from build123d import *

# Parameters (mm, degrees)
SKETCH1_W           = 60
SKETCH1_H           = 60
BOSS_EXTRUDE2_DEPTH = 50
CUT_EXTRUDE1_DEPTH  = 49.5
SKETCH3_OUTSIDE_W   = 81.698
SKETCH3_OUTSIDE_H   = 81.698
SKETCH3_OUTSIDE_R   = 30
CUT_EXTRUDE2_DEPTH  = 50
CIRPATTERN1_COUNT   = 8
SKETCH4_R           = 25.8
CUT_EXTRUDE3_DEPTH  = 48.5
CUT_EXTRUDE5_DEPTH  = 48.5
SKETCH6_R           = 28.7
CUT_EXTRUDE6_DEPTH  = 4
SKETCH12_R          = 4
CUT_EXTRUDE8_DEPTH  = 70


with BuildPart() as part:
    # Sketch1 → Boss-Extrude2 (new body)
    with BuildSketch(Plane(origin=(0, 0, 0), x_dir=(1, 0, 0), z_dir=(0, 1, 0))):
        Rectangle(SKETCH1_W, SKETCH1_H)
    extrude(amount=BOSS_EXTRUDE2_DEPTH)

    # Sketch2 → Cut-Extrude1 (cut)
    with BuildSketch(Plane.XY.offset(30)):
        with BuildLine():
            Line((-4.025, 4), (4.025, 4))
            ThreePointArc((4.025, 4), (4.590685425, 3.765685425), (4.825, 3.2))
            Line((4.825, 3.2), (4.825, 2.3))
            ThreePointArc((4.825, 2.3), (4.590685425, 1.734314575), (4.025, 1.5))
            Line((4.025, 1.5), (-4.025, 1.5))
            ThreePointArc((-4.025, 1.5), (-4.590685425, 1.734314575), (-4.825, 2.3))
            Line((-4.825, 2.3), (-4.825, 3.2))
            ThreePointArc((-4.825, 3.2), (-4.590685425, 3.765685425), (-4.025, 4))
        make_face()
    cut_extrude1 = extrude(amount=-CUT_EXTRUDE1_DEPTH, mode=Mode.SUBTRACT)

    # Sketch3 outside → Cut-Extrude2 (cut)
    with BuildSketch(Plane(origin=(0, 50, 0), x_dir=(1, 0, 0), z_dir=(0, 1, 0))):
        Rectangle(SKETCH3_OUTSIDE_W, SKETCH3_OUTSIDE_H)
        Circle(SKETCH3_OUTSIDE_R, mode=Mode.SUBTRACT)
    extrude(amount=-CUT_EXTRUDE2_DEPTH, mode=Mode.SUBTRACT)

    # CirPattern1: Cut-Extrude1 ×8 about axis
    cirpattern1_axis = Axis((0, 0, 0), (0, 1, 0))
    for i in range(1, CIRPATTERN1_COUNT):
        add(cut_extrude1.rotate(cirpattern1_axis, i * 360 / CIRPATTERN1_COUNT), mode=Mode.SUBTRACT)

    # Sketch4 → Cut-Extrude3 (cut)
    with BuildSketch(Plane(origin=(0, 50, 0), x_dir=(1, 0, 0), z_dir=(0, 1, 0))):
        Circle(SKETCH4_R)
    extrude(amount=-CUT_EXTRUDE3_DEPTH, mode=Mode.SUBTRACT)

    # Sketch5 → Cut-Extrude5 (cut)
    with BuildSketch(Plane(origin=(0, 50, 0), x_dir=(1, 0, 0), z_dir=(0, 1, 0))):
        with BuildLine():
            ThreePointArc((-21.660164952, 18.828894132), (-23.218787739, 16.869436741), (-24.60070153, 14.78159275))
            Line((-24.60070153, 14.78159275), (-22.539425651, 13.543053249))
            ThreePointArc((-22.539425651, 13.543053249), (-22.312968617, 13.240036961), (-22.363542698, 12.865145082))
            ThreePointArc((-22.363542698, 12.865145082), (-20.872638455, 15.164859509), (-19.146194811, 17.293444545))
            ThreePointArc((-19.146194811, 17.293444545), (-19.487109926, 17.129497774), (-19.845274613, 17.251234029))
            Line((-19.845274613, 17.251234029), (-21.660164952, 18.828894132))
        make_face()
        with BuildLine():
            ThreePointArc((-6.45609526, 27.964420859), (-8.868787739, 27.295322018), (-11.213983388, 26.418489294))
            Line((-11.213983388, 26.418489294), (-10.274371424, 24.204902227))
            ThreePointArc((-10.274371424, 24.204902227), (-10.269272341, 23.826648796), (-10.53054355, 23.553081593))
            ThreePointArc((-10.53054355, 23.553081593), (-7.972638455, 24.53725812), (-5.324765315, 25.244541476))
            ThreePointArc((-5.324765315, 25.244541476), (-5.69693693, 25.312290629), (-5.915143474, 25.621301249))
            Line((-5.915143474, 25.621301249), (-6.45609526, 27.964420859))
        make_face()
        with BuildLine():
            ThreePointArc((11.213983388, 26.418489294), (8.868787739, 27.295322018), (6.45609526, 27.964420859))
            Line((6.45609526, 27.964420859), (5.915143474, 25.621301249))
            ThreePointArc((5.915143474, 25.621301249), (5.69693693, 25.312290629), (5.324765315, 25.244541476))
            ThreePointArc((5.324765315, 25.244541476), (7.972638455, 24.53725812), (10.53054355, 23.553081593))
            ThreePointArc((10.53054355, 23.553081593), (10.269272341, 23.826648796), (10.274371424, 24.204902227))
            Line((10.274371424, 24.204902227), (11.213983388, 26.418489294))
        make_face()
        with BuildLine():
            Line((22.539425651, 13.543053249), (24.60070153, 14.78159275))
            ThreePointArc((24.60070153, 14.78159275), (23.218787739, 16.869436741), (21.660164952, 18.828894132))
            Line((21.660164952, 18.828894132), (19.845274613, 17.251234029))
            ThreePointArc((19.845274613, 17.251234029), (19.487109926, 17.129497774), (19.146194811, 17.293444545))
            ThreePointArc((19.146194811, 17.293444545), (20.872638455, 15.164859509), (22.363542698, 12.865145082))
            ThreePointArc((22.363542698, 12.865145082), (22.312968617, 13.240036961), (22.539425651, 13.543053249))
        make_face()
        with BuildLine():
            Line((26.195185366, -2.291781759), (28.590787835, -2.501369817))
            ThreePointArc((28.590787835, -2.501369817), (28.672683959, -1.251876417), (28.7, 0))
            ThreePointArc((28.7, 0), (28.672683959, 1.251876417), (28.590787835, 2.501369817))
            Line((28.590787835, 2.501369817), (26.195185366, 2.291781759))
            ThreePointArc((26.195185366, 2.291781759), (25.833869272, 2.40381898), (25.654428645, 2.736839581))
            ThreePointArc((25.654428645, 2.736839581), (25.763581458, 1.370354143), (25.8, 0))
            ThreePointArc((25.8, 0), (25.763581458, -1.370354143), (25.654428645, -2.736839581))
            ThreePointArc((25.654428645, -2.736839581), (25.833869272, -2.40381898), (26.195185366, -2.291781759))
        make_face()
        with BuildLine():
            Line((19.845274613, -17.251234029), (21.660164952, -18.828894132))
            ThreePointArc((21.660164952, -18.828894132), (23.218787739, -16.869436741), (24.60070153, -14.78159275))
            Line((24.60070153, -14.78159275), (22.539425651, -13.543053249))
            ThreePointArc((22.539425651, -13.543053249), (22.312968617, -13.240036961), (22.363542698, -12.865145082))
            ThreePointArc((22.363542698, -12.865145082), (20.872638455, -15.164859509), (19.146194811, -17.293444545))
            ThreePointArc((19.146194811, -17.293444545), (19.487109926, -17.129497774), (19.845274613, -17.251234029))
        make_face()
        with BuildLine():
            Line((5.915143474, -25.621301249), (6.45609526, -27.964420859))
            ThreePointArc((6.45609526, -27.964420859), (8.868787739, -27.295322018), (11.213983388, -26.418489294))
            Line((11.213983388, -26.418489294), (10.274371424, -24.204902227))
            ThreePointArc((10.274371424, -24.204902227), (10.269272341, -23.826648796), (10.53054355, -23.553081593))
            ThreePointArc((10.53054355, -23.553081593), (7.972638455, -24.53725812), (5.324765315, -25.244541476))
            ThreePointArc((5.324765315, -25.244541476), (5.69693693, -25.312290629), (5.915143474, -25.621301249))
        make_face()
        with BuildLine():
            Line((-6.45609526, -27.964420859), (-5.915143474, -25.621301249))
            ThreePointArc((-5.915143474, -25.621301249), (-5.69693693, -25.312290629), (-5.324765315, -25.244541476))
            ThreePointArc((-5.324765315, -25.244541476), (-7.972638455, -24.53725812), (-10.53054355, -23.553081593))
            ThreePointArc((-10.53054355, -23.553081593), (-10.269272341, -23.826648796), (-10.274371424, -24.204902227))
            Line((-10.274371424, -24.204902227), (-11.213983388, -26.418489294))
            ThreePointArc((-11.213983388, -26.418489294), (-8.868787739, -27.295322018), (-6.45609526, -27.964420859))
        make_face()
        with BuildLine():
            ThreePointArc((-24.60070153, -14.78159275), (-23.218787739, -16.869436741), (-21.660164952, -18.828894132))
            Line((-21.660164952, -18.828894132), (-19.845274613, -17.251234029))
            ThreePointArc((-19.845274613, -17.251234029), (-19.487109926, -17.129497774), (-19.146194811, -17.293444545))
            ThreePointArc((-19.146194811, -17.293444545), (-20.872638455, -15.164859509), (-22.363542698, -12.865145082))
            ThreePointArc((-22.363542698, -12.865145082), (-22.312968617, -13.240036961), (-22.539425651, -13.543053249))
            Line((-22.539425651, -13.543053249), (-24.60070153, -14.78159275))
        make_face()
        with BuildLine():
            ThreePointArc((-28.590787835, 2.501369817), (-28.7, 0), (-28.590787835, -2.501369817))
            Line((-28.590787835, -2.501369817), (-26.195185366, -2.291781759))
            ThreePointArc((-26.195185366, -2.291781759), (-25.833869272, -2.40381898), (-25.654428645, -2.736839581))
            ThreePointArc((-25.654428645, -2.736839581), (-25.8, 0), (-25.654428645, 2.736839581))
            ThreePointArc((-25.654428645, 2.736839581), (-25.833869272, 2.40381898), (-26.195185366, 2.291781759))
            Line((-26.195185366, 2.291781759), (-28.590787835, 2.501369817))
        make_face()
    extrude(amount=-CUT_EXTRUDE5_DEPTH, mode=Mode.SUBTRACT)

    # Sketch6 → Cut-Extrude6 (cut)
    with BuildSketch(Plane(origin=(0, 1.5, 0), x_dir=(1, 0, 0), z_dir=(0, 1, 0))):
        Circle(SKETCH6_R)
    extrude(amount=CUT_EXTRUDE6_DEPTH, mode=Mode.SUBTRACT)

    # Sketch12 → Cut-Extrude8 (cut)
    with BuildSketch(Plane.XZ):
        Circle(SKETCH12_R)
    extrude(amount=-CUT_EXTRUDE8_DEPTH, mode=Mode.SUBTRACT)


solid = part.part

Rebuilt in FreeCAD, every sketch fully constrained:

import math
import FreeCAD as App
import Part
import Sketcher
from FreeCAD import Vector
Q = App.Units.Quantity

doc = App.newDocument("Part")
body = doc.addObject("PartDesign::Body", "Body")

sketch1 = body.newObject("Sketcher::SketchObject", "Sketch")
sketch1.AttachmentSupport = (doc.getObject("XZ_Plane"), [""])
sketch1.MapMode = "FlatFace"
sketch1.addGeometry([
    Part.LineSegment(Vector(-30, -30, 0), Vector(-30, 30, 0)),
    Part.LineSegment(Vector(-30, 30, 0), Vector(30, 30, 0)),
    Part.LineSegment(Vector(30, 30, 0), Vector(30, -30, 0)),
    Part.LineSegment(Vector(30, -30, 0), Vector(-30, -30, 0)),
], False)
sketch1.addConstraint([
    Sketcher.Constraint("Coincident", 0, 2, 1, 1),
    Sketcher.Constraint("Coincident", 1, 2, 2, 1),
    Sketcher.Constraint("Coincident", 2, 2, 3, 1),
    Sketcher.Constraint("Coincident", 3, 2, 0, 1),
    Sketcher.Constraint("Vertical", 0),
    Sketcher.Constraint("Horizontal", 1),
    Sketcher.Constraint("Vertical", 2),
    Sketcher.Constraint("Horizontal", 3),
    Sketcher.Constraint("Symmetric", 0, 2, 2, 2, -1, 1),
    Sketcher.Constraint("Equal", 3, 0),
    Sketcher.Constraint("DistanceX", 1, 1, 1, 2, Q("60 mm")),
])
pad1 = body.newObject("PartDesign::Pad", "Pad")
pad1.Profile = sketch1
pad1.Length = 50
pad1.Reversed = True

sketch2 = body.newObject("Sketcher::SketchObject", "Sketch001")
sketch2.AttachmentSupport = (doc.getObject("XY_Plane"), [""])
sketch2.MapMode = "FlatFace"
sketch2.AttachmentOffset = App.Placement(Vector(0, 0, 30), App.Rotation())
sketch2.addGeometry([
    Part.LineSegment(Vector(4, 4, 0), Vector(-4, 4, 0)),
    Part.ArcOfCircle(Part.Circle(Vector(-4, 3.2, 0), Vector(0, 0, 1), 0.8), math.radians(90), math.radians(180)),
    Part.LineSegment(Vector(-4.8, 3.2, 0), Vector(-4.8, 2.3, 0)),
    Part.ArcOfCircle(Part.Circle(Vector(-4, 2.3, 0), Vector(0, 0, 1), 0.8), math.radians(180), math.radians(270)),
    Part.LineSegment(Vector(-4, 1.5, 0), Vector(4, 1.5, 0)),
    Part.ArcOfCircle(Part.Circle(Vector(4, 2.3, 0), Vector(0, 0, 1), 0.8), math.radians(-90), math.radians(0)),
    Part.LineSegment(Vector(4.8, 2.3, 0), Vector(4.8, 3.2, 0)),
    Part.ArcOfCircle(Part.Circle(Vector(4, 3.2, 0), Vector(0, 0, 1), 0.8), math.radians(0), math.radians(90)),
], False)
sketch2.addConstraint([
    Sketcher.Constraint("Tangent", 0, 2, 1, 1),
    Sketcher.Constraint("Tangent", 1, 2, 2, 1),
    Sketcher.Constraint("Tangent", 2, 2, 3, 1),
    Sketcher.Constraint("Tangent", 3, 2, 4, 1),
    Sketcher.Constraint("Tangent", 4, 2, 5, 1),
    Sketcher.Constraint("Tangent", 5, 2, 6, 1),
    Sketcher.Constraint("Tangent", 6, 2, 7, 1),
    Sketcher.Constraint("Tangent", 7, 2, 0, 1),
    Sketcher.Constraint("Horizontal", 0),
    Sketcher.Constraint("Vertical", 2),
    Sketcher.Constraint("Horizontal", 4),
    Sketcher.Constraint("Vertical", 6),
    Sketcher.Constraint("Equal", 1, 3),
    Sketcher.Constraint("Equal", 3, 5),
    Sketcher.Constraint("Equal", 5, 7),
    Sketcher.Constraint("Radius", 1, Q("0.8 mm")),
    Sketcher.Constraint("DistanceY", 2, 2, 2, 1, Q("0.9 mm")),
    Sketcher.Constraint("DistanceY", -1, 1, 0, 2, Q("4 mm")),
    Sketcher.Constraint("DistanceX", 0, 2, 0, 1, Q("8.05 mm")),
    Sketcher.Constraint("DistanceX", 1, 3, -1, 1, Q("4.025 mm")),
])
pocket1 = body.newObject("PartDesign::Pocket", "Pocket")
pocket1.Profile = sketch2
pocket1.Length = 49.5

sketch3 = body.newObject("Sketcher::SketchObject", "Sketch002")
sketch3.AttachmentSupport = (doc.getObject("XZ_Plane"), [""])
sketch3.MapMode = "FlatFace"
sketch3.AttachmentOffset = App.Placement(Vector(0, 0, -50), App.Rotation())
sketch3.addGeometry([
    Part.LineSegment(Vector(-41, -41, 0), Vector(-41, 41, 0)),
    Part.LineSegment(Vector(-41, 41, 0), Vector(41, 41, 0)),
    Part.LineSegment(Vector(41, 41, 0), Vector(41, -41, 0)),
    Part.LineSegment(Vector(41, -41, 0), Vector(-41, -41, 0)),
    Part.Circle(Vector(0, 0, 0), Vector(0, 0, 1), 30),
], False)
sketch3.addConstraint([
    Sketcher.Constraint("Coincident", 0, 2, 1, 1),
    Sketcher.Constraint("Coincident", 1, 2, 2, 1),
    Sketcher.Constraint("Coincident", 2, 2, 3, 1),
    Sketcher.Constraint("Coincident", 3, 2, 0, 1),
    Sketcher.Constraint("Vertical", 0),
    Sketcher.Constraint("Horizontal", 1),
    Sketcher.Constraint("Vertical", 2),
    Sketcher.Constraint("Horizontal", 3),
    Sketcher.Constraint("Coincident", 4, 3, -1, 1),
    Sketcher.Constraint("Symmetric", 0, 2, 2, 2, -1, 1),
    Sketcher.Constraint("Equal", 3, 0),
    Sketcher.Constraint("Diameter", 4, Q("60 mm")),
    Sketcher.Constraint("DistanceX", 1, 1, 1, 2, Q("81.698 mm")),
])
pocket2 = body.newObject("PartDesign::Pocket", "Pocket001")
pocket2.Profile = sketch3
pocket2.Length = 50
pocket2.Reversed = True
doc.recompute()

polarpattern = body.newObject("PartDesign::PolarPattern", "PolarPattern")
polarpattern.Originals = [pocket1]
polarpattern.Axis = (doc.getObject("Y_Axis"), [""])
polarpattern.Angle = 360
polarpattern.Occurrences = 8
body.Tip = polarpattern

sketch4 = body.newObject("Sketcher::SketchObject", "Sketch003")
sketch4.AttachmentSupport = (doc.getObject("XZ_Plane"), [""])
sketch4.MapMode = "FlatFace"
sketch4.AttachmentOffset = App.Placement(Vector(0, 0, -50), App.Rotation())
sketch4.addGeometry(Part.Circle(Vector(0, 0, 0), Vector(0, 0, 1), 26), False)
sketch4.addConstraint([
    Sketcher.Constraint("Coincident", 0, 3, -1, 1),
    Sketcher.Constraint("Diameter", 0, Q("51.6 mm")),
])
pocket3 = body.newObject("PartDesign::Pocket", "Pocket002")
pocket3.Profile = sketch4
pocket3.Length = 48.5
pocket3.Reversed = True

sketch5 = body.newObject("Sketcher::SketchObject", "Sketch004")
sketch5.AttachmentSupport = (doc.getObject("XZ_Plane"), [""])
sketch5.MapMode = "FlatFace"
sketch5.AttachmentOffset = App.Placement(Vector(0, 0, -50), App.Rotation())
sketch5.addGeometry([
    Part.ArcOfCircle(Part.Circle(Vector(0, 0, 0), Vector(0, 0, 1), 28.7), math.radians(-149), math.radians(-139)),
    Part.LineSegment(Vector(-24.6, -14.78, 0), Vector(-22.54, -13.54, 0)),
    Part.ArcOfCircle(Part.Circle(Vector(-22.8, -13.11, 0), Vector(0, 0, 1), 0.5), math.radians(-59), math.radians(30)),
    Part.ArcOfCircle(Part.Circle(Vector(0, 0, 0), Vector(0, 0, 1), 25.8), math.radians(-150.09), math.radians(-137.91)),
    Part.ArcOfCircle(Part.Circle(Vector(-19.52, -17.63, 0), Vector(0, 0, 1), 0.5), math.radians(42), math.radians(131)),
    Part.LineSegment(Vector(-19.85, -17.25, 0), Vector(-21.66, -18.83, 0)),
    Part.ArcOfCircle(Part.Circle(Vector(0, 0, 0), Vector(0, 0, 1), 28.7), math.radians(-113), math.radians(-103)),
    Part.LineSegment(Vector(-11.21, -26.42, 0), Vector(-10.27, -24.2, 0)),
    Part.ArcOfCircle(Part.Circle(Vector(-10.73, -24.01, 0), Vector(0, 0, 1), 0.5), math.radians(-23), math.radians(66)),
    Part.ArcOfCircle(Part.Circle(Vector(0, 0, 0), Vector(0, 0, 1), 25.8), math.radians(-114.09), math.radians(-101.91)),
    Part.ArcOfCircle(Part.Circle(Vector(-5.43, -25.73, 0), Vector(0, 0, 1), 0.5), math.radians(78), math.radians(167)),
    Part.LineSegment(Vector(-5.92, -25.62, 0), Vector(-6.46, -27.96, 0)),
    Part.ArcOfCircle(Part.Circle(Vector(0, 0, 0), Vector(0, 0, 1), 28.7), math.radians(-77), math.radians(-67)),
    Part.LineSegment(Vector(6.46, -27.96, 0), Vector(5.92, -25.62, 0)),
    Part.ArcOfCircle(Part.Circle(Vector(5.43, -25.73, 0), Vector(0, 0, 1), 0.5), math.radians(13), math.radians(102)),
    Part.ArcOfCircle(Part.Circle(Vector(0, 0, 0), Vector(0, 0, 1), 25.8), math.radians(-78.09), math.radians(-65.91)),
    Part.ArcOfCircle(Part.Circle(Vector(10.73, -24.01, 0), Vector(0, 0, 1), 0.5), math.radians(114), math.radians(203)),
    Part.LineSegment(Vector(10.27, -24.2, 0), Vector(11.21, -26.42, 0)),
    Part.LineSegment(Vector(22.54, -13.54, 0), Vector(24.6, -14.78, 0)),
    Part.ArcOfCircle(Part.Circle(Vector(0, 0, 0), Vector(0, 0, 1), 28.7), math.radians(-41), math.radians(-31)),
    Part.LineSegment(Vector(21.66, -18.83, 0), Vector(19.85, -17.25, 0)),
    Part.ArcOfCircle(Part.Circle(Vector(19.52, -17.63, 0), Vector(0, 0, 1), 0.5), math.radians(49), math.radians(138)),
    Part.ArcOfCircle(Part.Circle(Vector(0, 0, 0), Vector(0, 0, 1), 25.8), math.radians(-42.09), math.radians(-29.91)),
    Part.ArcOfCircle(Part.Circle(Vector(22.8, -13.11, 0), Vector(0, 0, 1), 0.5), math.radians(150), math.radians(239)),
    Part.LineSegment(Vector(26.2, 2.29, 0), Vector(28.59, 2.5, 0)),
    Part.ArcOfCircle(Part.Circle(Vector(0, 0, 0), Vector(0, 0, 1), 28.7), math.radians(0), math.radians(5)),
    Part.ArcOfCircle(Part.Circle(Vector(0, 0, 0), Vector(0, 0, 1), 28.7), math.radians(-5), math.radians(0)),
    Part.LineSegment(Vector(28.59, -2.5, 0), Vector(26.2, -2.29, 0)),
    Part.ArcOfCircle(Part.Circle(Vector(26.15, -2.79, 0), Vector(0, 0, 1), 0.5), math.radians(85), math.radians(174)),
    Part.ArcOfCircle(Part.Circle(Vector(0, 0, 0), Vector(0, 0, 1), 25.8), math.radians(-6.09), math.radians(0)),
    Part.ArcOfCircle(Part.Circle(Vector(0, 0, 0), Vector(0, 0, 1), 25.8), math.radians(0), math.radians(6.09)),
    Part.ArcOfCircle(Part.Circle(Vector(26.15, 2.79, 0), Vector(0, 0, 1), 0.5), math.radians(-174), math.radians(-85)),
    Part.LineSegment(Vector(19.85, 17.25, 0), Vector(21.66, 18.83, 0)),
    Part.ArcOfCircle(Part.Circle(Vector(0, 0, 0), Vector(0, 0, 1), 28.7), math.radians(31), math.radians(41)),
    Part.LineSegment(Vector(24.6, 14.78, 0), Vector(22.54, 13.54, 0)),
    Part.ArcOfCircle(Part.Circle(Vector(22.8, 13.11, 0), Vector(0, 0, 1), 0.5), math.radians(121), math.radians(210)),
    Part.ArcOfCircle(Part.Circle(Vector(0, 0, 0), Vector(0, 0, 1), 25.8), math.radians(29.91), math.radians(42.09)),
    Part.ArcOfCircle(Part.Circle(Vector(19.52, 17.63, 0), Vector(0, 0, 1), 0.5), math.radians(-138), math.radians(-49)),
    Part.LineSegment(Vector(5.92, 25.62, 0), Vector(6.46, 27.96, 0)),
    Part.ArcOfCircle(Part.Circle(Vector(0, 0, 0), Vector(0, 0, 1), 28.7), math.radians(67), math.radians(77)),
    Part.LineSegment(Vector(11.21, 26.42, 0), Vector(10.27, 24.2, 0)),
    Part.ArcOfCircle(Part.Circle(Vector(10.73, 24.01, 0), Vector(0, 0, 1), 0.5), math.radians(157), math.radians(246)),
    Part.ArcOfCircle(Part.Circle(Vector(0, 0, 0), Vector(0, 0, 1), 25.8), math.radians(65.91), math.radians(78.09)),
    Part.ArcOfCircle(Part.Circle(Vector(5.43, 25.73, 0), Vector(0, 0, 1), 0.5), math.radians(-102), math.radians(-13)),
    Part.LineSegment(Vector(-6.46, 27.96, 0), Vector(-5.92, 25.62, 0)),
    Part.ArcOfCircle(Part.Circle(Vector(-5.43, 25.73, 0), Vector(0, 0, 1), 0.5), math.radians(-167), math.radians(-78)),
    Part.ArcOfCircle(Part.Circle(Vector(0, 0, 0), Vector(0, 0, 1), 25.8), math.radians(101.91), math.radians(114.09)),
    Part.ArcOfCircle(Part.Circle(Vector(-10.73, 24.01, 0), Vector(0, 0, 1), 0.5), math.radians(-66), math.radians(23)),
    Part.LineSegment(Vector(-10.27, 24.2, 0), Vector(-11.21, 26.42, 0)),
    Part.ArcOfCircle(Part.Circle(Vector(0, 0, 0), Vector(0, 0, 1), 28.7), math.radians(103), math.radians(113)),
    Part.ArcOfCircle(Part.Circle(Vector(0, 0, 0), Vector(0, 0, 1), 28.7), math.radians(139), math.radians(149)),
    Part.LineSegment(Vector(-21.66, 18.83, 0), Vector(-19.85, 17.25, 0)),
    Part.ArcOfCircle(Part.Circle(Vector(-19.52, 17.63, 0), Vector(0, 0, 1), 0.5), math.radians(-131), math.radians(-42)),
    Part.ArcOfCircle(Part.Circle(Vector(0, 0, 0), Vector(0, 0, 1), 25.8), math.radians(137.91), math.radians(150.09)),
    Part.ArcOfCircle(Part.Circle(Vector(-22.8, 13.11, 0), Vector(0, 0, 1), 0.5), math.radians(-30), math.radians(59)),
    Part.LineSegment(Vector(-22.54, 13.54, 0), Vector(-24.6, 14.78, 0)),
    Part.ArcOfCircle(Part.Circle(Vector(0, 0, 0), Vector(0, 0, 1), 28.7), math.radians(175), math.radians(185)),
    Part.LineSegment(Vector(-28.59, 2.5, 0), Vector(-26.2, 2.29, 0)),
    Part.ArcOfCircle(Part.Circle(Vector(-26.15, 2.79, 0), Vector(0, 0, 1), 0.5), math.radians(-95), math.radians(-6)),
    Part.ArcOfCircle(Part.Circle(Vector(0, 0, 0), Vector(0, 0, 1), 25.8), math.radians(173.91), math.radians(186.09)),
    Part.ArcOfCircle(Part.Circle(Vector(-26.15, -2.79, 0), Vector(0, 0, 1), 0.5), math.radians(6), math.radians(95)),
    Part.LineSegment(Vector(-26.2, -2.29, 0), Vector(-28.59, -2.5, 0)),
], False)
sketch5.addConstraint([
    Sketcher.Constraint("Coincident", 0, 1, 1, 1),
    Sketcher.Constraint("Tangent", 1, 2, 2, 1),
    Sketcher.Constraint("Tangent", 2, 2, 3, 1),
    Sketcher.Constraint("Tangent", 3, 2, 4, 1),
    Sketcher.Constraint("Tangent", 4, 2, 5, 1),
    Sketcher.Constraint("Coincident", 5, 2, 0, 2),
    Sketcher.Constraint("Coincident", 6, 1, 7, 1),
    Sketcher.Constraint("Tangent", 7, 2, 8, 1),
    Sketcher.Constraint("Tangent", 8, 2, 9, 1),
    Sketcher.Constraint("Tangent", 9, 2, 10, 1),
    Sketcher.Constraint("Tangent", 10, 2, 11, 1),
    Sketcher.Constraint("Coincident", 11, 2, 6, 2),
    Sketcher.Constraint("Coincident", 12, 1, 13, 1),
    Sketcher.Constraint("Tangent", 13, 2, 14, 1),
    Sketcher.Constraint("Tangent", 14, 2, 15, 1),
    Sketcher.Constraint("Tangent", 15, 2, 16, 1),
    Sketcher.Constraint("Tangent", 16, 2, 17, 1),
    Sketcher.Constraint("Coincident", 17, 2, 12, 2),
    Sketcher.Constraint("Coincident", 18, 2, 19, 2),
    Sketcher.Constraint("Coincident", 19, 1, 20, 1),
    Sketcher.Constraint("Tangent", 20, 2, 21, 1),
    Sketcher.Constraint("Tangent", 21, 2, 22, 1),
    Sketcher.Constraint("Tangent", 22, 2, 23, 1),
    Sketcher.Constraint("Tangent", 23, 2, 18, 1),
    Sketcher.Constraint("Coincident", 24, 2, 25, 2),
    Sketcher.Constraint("Tangent", 25, 1, 26, 2),
    Sketcher.Constraint("Coincident", 26, 1, 27, 1),
    Sketcher.Constraint("Tangent", 27, 2, 28, 1),
    Sketcher.Constraint("Tangent", 28, 2, 29, 1),
    Sketcher.Constraint("Tangent", 29, 2, 30, 1),
    Sketcher.Constraint("Tangent", 30, 2, 31, 1),
    Sketcher.Constraint("Tangent", 31, 2, 24, 1),
    Sketcher.Constraint("Coincident", 32, 2, 33, 2),
    Sketcher.Constraint("Coincident", 33, 1, 34, 1),
    Sketcher.Constraint("Tangent", 34, 2, 35, 1),
    Sketcher.Constraint("Tangent", 35, 2, 36, 1),
    Sketcher.Constraint("Tangent", 36, 2, 37, 1),
    Sketcher.Constraint("Tangent", 37, 2, 32, 1),
    Sketcher.Constraint("Coincident", 38, 2, 39, 2),
    Sketcher.Constraint("Coincident", 39, 1, 40, 1),
    Sketcher.Constraint("Tangent", 40, 2, 41, 1),
    Sketcher.Constraint("Tangent", 41, 2, 42, 1),
    Sketcher.Constraint("Tangent", 42, 2, 43, 1),
    Sketcher.Constraint("Tangent", 43, 2, 38, 1),
    Sketcher.Constraint("Tangent", 44, 2, 45, 1),
    Sketcher.Constraint("Tangent", 45, 2, 46, 1),
    Sketcher.Constraint("Tangent", 46, 2, 47, 1),
    Sketcher.Constraint("Tangent", 47, 2, 48, 1),
    Sketcher.Constraint("Coincident", 48, 2, 49, 2),
    Sketcher.Constraint("Coincident", 49, 1, 44, 1),
    Sketcher.Constraint("Coincident", 50, 1, 51, 1),
    Sketcher.Constraint("Tangent", 51, 2, 52, 1),
    Sketcher.Constraint("Tangent", 52, 2, 53, 1),
    Sketcher.Constraint("Tangent", 53, 2, 54, 1),
    Sketcher.Constraint("Tangent", 54, 2, 55, 1),
    Sketcher.Constraint("Coincident", 55, 2, 50, 2),
    Sketcher.Constraint("Coincident", 56, 1, 57, 1),
    Sketcher.Constraint("Tangent", 57, 2, 58, 1),
    Sketcher.Constraint("Tangent", 58, 2, 59, 1),
    Sketcher.Constraint("Tangent", 59, 2, 60, 1),
    Sketcher.Constraint("Tangent", 60, 2, 61, 1),
    Sketcher.Constraint("Coincident", 61, 2, 56, 2),
    Sketcher.Constraint("Coincident", 0, 3, -1, 1),
    Sketcher.Constraint("Coincident", 3, 3, -1, 1),
    Sketcher.Constraint("Coincident", 6, 3, -1, 1),
    Sketcher.Constraint("Coincident", 9, 3, -1, 1),
    Sketcher.Constraint("Coincident", 12, 3, -1, 1),
    Sketcher.Constraint("Coincident", 15, 3, -1, 1),
    Sketcher.Constraint("Coincident", 19, 3, -1, 1),
    Sketcher.Constraint("Coincident", 22, 3, -1, 1),
    Sketcher.Constraint("Coincident", 25, 3, -1, 1),
    Sketcher.Constraint("Coincident", 29, 3, -1, 1),
    Sketcher.Constraint("Coincident", 33, 3, -1, 1),
    Sketcher.Constraint("Coincident", 36, 3, -1, 1),
    Sketcher.Constraint("Coincident", 39, 3, -1, 1),
    Sketcher.Constraint("Coincident", 42, 3, -1, 1),
    Sketcher.Constraint("Coincident", 46, 3, -1, 1),
    Sketcher.Constraint("Coincident", 49, 3, -1, 1),
    Sketcher.Constraint("Coincident", 50, 3, -1, 1),
    Sketcher.Constraint("Coincident", 53, 3, -1, 1),
    Sketcher.Constraint("Coincident", 56, 3, -1, 1),
    Sketcher.Constraint("Coincident", 59, 3, -1, 1),
    Sketcher.Constraint("Equal", 2, 4),
    Sketcher.Constraint("Equal", 0, 6),
    Sketcher.Constraint("Equal", 4, 8),
    Sketcher.Constraint("Equal", 3, 9),
    Sketcher.Constraint("Equal", 8, 10),
    Sketcher.Constraint("Equal", 6, 12),
    Sketcher.Constraint("Equal", 10, 14),
    Sketcher.Constraint("Equal", 9, 15),
    Sketcher.Constraint("Equal", 14, 16),
    Sketcher.Constraint("Equal", 12, 19),
    Sketcher.Constraint("Equal", 16, 21),
    Sketcher.Constraint("Equal", 15, 22),
    Sketcher.Constraint("Equal", 21, 23),
    Sketcher.Constraint("Equal", 19, 25),
    Sketcher.Constraint("Equal", 25, 26),
    Sketcher.Constraint("Equal", 23, 28),
    Sketcher.Constraint("Equal", 22, 29),
    Sketcher.Constraint("Equal", 29, 30),
    Sketcher.Constraint("Equal", 28, 31),
    Sketcher.Constraint("Equal", 26, 33),
    Sketcher.Constraint("Equal", 31, 35),
    Sketcher.Constraint("Equal", 30, 36),
    Sketcher.Constraint("Equal", 35, 37),
    Sketcher.Constraint("Equal", 33, 39),
    Sketcher.Constraint("Equal", 37, 41),
    Sketcher.Constraint("Equal", 36, 42),
    Sketcher.Constraint("Equal", 41, 43),
    Sketcher.Constraint("Equal", 43, 45),
    Sketcher.Constraint("Equal", 42, 46),
    Sketcher.Constraint("Equal", 45, 47),
    Sketcher.Constraint("Equal", 39, 49),
    Sketcher.Constraint("Equal", 49, 50),
    Sketcher.Constraint("Equal", 47, 52),
    Sketcher.Constraint("Equal", 46, 53),
    Sketcher.Constraint("Equal", 52, 54),
    Sketcher.Constraint("Equal", 50, 56),
    Sketcher.Constraint("Equal", 54, 58),
    Sketcher.Constraint("Equal", 53, 59),
    Sketcher.Constraint("Equal", 58, 60),
    Sketcher.Constraint("Symmetric", 1, 2, 34, 2, -1, 1),
    Sketcher.Constraint("Symmetric", 4, 2, 37, 2, -1, 1),
    Sketcher.Constraint("Symmetric", 7, 2, 40, 2, -1, 1),
    Sketcher.Constraint("Symmetric", 10, 2, 43, 2, -1, 1),
    Sketcher.Constraint("Symmetric", 13, 2, 44, 2, -1, 1),
    Sketcher.Constraint("Symmetric", 16, 2, 47, 2, -1, 1),
    Sketcher.Constraint("Symmetric", 20, 2, 51, 2, -1, 1),
    Sketcher.Constraint("Symmetric", 23, 2, 54, 2, -1, 1),
    Sketcher.Constraint("Symmetric", 27, 2, 57, 2, -1, 1),
    Sketcher.Constraint("Symmetric", 31, 2, 60, 2, -1, 1),
    Sketcher.Constraint("Symmetric", 10, 2, 13, 2, -2),
    Sketcher.Constraint("Symmetric", 7, 2, 16, 2, -2),
    Sketcher.Constraint("Symmetric", 4, 2, 20, 2, -2),
    Sketcher.Constraint("Symmetric", 1, 2, 23, 2, -2),
    Sketcher.Constraint("Symmetric", 31, 2, 57, 2, -2),
    Sketcher.Constraint("PointOnObject", 25, 1, -1),
    Sketcher.Constraint("PointOnObject", 29, 2, -1),
    Sketcher.Constraint("Equal", 1, 5),
    Sketcher.Constraint("Equal", 5, 7),
    Sketcher.Constraint("Equal", 7, 11),
    Sketcher.Constraint("Equal", 20, 24),
    Sketcher.Constraint("Radius", 0, Q("28.7 mm")),
    Sketcher.Constraint("Radius", 2, Q("0.5 mm")),
    Sketcher.Constraint("Radius", 3, Q("25.8 mm")),
    Sketcher.Constraint("Angle", 1, Q("31 deg")),
    Sketcher.Constraint("Angle", 5, Q("-139 deg")),
    Sketcher.Constraint("Angle", 7, Q("67 deg")),
    Sketcher.Constraint("Angle", 11, Q("-103 deg")),
    Sketcher.Constraint("Angle", 24, Q("5 deg")),
    Sketcher.Constraint("DistanceX", 0, 1, -1, 1, Q("24.600702 mm")),
])
pocket4 = body.newObject("PartDesign::Pocket", "Pocket003")
pocket4.Profile = sketch5
pocket4.Length = 48.5
pocket4.Reversed = True

sketch6 = body.newObject("Sketcher::SketchObject", "Sketch005")
sketch6.AttachmentSupport = (doc.getObject("XZ_Plane"), [""])
sketch6.MapMode = "FlatFace"
sketch6.AttachmentOffset = App.Placement(Vector(0, 0, -1.5), App.Rotation())
sketch6.addGeometry(Part.Circle(Vector(0, 0, 0), Vector(0, 0, 1), 29), False)
sketch6.addConstraint([
    Sketcher.Constraint("Coincident", 0, 3, -1, 1),
    Sketcher.Constraint("Diameter", 0, Q("57.4 mm")),
])
pocket5 = body.newObject("PartDesign::Pocket", "Pocket004")
pocket5.Profile = sketch6
pocket5.Length = 4

sketch7 = body.newObject("Sketcher::SketchObject", "Sketch006")
sketch7.AttachmentSupport = (doc.getObject("XZ_Plane"), [""])
sketch7.MapMode = "FlatFace"
sketch7.addGeometry(Part.Circle(Vector(0, 0, 0), Vector(0, 0, 1), 4), False)
sketch7.addConstraint([
    Sketcher.Constraint("Coincident", 0, 3, -1, 1),
    Sketcher.Constraint("Diameter", 0, Q("8 mm")),
])
pocket6 = body.newObject("PartDesign::Pocket", "Pocket005")
pocket6.Profile = sketch7
pocket6.Length = 70

doc.recompute()
